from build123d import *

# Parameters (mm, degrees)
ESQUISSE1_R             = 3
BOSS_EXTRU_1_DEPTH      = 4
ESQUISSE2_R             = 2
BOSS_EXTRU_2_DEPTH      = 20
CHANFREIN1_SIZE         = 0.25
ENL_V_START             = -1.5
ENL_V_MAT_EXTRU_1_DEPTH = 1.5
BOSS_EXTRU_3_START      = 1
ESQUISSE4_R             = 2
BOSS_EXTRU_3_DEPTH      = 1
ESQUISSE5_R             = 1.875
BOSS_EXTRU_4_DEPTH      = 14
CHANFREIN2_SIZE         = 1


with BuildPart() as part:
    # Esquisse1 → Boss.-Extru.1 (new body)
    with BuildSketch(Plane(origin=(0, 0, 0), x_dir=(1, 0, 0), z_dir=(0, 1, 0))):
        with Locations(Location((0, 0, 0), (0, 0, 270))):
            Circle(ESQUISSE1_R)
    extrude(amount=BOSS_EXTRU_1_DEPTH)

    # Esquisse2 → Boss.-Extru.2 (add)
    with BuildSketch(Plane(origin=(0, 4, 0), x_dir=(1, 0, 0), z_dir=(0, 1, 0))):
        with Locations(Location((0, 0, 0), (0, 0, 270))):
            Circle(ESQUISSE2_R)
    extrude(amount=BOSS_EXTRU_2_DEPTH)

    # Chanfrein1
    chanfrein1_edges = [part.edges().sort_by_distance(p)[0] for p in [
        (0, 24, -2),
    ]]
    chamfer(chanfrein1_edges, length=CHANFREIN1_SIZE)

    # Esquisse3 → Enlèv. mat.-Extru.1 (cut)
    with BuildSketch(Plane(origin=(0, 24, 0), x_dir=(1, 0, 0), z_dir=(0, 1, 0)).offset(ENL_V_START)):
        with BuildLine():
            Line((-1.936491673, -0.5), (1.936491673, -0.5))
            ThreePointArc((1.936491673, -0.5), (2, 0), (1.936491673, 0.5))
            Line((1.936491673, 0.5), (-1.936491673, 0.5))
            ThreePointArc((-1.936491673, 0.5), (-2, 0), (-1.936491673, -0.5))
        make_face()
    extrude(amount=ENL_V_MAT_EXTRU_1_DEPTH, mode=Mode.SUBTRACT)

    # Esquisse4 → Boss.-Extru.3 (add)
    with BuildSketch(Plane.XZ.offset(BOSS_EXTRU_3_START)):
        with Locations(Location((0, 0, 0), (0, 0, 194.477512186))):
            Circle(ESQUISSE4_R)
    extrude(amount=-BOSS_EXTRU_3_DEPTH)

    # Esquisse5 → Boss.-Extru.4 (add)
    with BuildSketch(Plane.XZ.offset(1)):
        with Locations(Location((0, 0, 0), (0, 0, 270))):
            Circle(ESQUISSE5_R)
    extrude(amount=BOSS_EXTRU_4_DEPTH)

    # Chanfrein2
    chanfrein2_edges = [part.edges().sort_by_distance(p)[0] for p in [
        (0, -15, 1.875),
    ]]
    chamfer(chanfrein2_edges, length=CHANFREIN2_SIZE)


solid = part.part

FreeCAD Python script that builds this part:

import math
import FreeCAD as App
import Part
import Sketcher

V = App.Vector
Q = App.Units.Quantity


def edges_at(feature, points):
    """Names of the edges that pass closest to the given points."""
    edges = feature.Shape.Edges
    near = lambda p: min(range(len(edges)), key=lambda i: edges[i].distToShape(Part.Vertex(*p))[0])
    return sorted({f"Edge{near(p) + 1}" for p in points})

doc = App.newDocument("Part")
body = doc.addObject("PartDesign::Body", "Body")

sketch1 = doc.addObject("Sketcher::SketchObject", "Sketch")
body.addObject(sketch1)
sketch1.AttachmentSupport = (doc.XZ_Plane, [""])
sketch1.MapMode = "FlatFace"
sketch1.addGeometry(Part.Circle(V(0, 0, 0), V(0, 0, 1), 3), False)
sketch1.addConstraint([
    Sketcher.Constraint("Coincident", 0, 3, -1, 1),
    Sketcher.Constraint("Diameter", 0, Q("6 mm")),
])
pad1 = doc.addObject("PartDesign::Pad", "Pad")
body.addObject(pad1)
pad1.Profile = sketch1
pad1.Length = 4
pad1.Reversed = True

sketch2 = doc.addObject("Sketcher::SketchObject", "Sketch001")
body.addObject(sketch2)
sketch2.AttachmentSupport = (doc.XZ_Plane, [""])
sketch2.MapMode = "FlatFace"
sketch2.AttachmentOffset = App.Placement(V(0, 0, -4), App.Rotation())
sketch2.addGeometry(Part.Circle(V(0, 0, 0), V(0, 0, 1), 2), False)
sketch2.addConstraint([
    Sketcher.Constraint("Coincident", 0, 3, -1, 1),
    Sketcher.Constraint("Diameter", 0, Q("4 mm")),
])
pad2 = doc.addObject("PartDesign::Pad", "Pad001")
body.addObject(pad2)
pad2.Profile = sketch2
pad2.Length = 20
pad2.Reversed = True
doc.recompute()

chamfer = doc.addObject("PartDesign::Chamfer", "Chamfer")
body.addObject(chamfer)
chamfer.Base = (pad2, edges_at(pad2, [(0, 24, -2)]))
chamfer.Size = 0.25

sketch3 = doc.addObject("Sketcher::SketchObject", "Sketch002")
body.addObject(sketch3)
sketch3.AttachmentSupport = (doc.XZ_Plane, [""])
sketch3.MapMode = "FlatFace"
sketch3.AttachmentOffset = App.Placement(V(0, 0, -22.5), App.Rotation())
sketch3.addGeometry([
    Part.LineSegment(V(-1.9, 0.5, 0), V(1.9, 0.5, 0)),
    Part.ArcOfCircle(Part.Circle(V(0, 0, 0), V(0, 0, 1), 2), math.radians(-14), math.radians(14)),
    Part.LineSegment(V(1.9, -0.5, 0), V(-1.9, -0.5, 0)),
    Part.ArcOfCircle(Part.Circle(V(0, 0, 0), V(0, 0, 1), 2), math.radians(166), math.radians(194)),
], False)
sketch3.addConstraint([
    Sketcher.Constraint("Coincident", 0, 2, 1, 2),
    Sketcher.Constraint("Coincident", 1, 1, 2, 1),
    Sketcher.Constraint("Coincident", 2, 2, 3, 2),
    Sketcher.Constraint("Coincident", 3, 1, 0, 1),
    Sketcher.Constraint("Horizontal", 0),
    Sketcher.Constraint("Horizontal", 2),
    Sketcher.Constraint("Coincident", 1, 3, -1, 1),
    Sketcher.Constraint("Coincident", 3, 3, -1, 1),
    Sketcher.Constraint("Equal", 1, 3),
    Sketcher.Constraint("Vertical", 0, 2, 1, 1),
    Sketcher.Constraint("Radius", 1, Q("2 mm")),
    Sketcher.Constraint("DistanceY", 1, 1, 0, 2, Q("1 mm")),
])
pocket1 = doc.addObject("PartDesign::Pocket", "Pocket")
body.addObject(pocket1)
pocket1.Profile = sketch3
pocket1.Length = 1.5

sketch4 = doc.addObject("Sketcher::SketchObject", "Sketch003")
body.addObject(sketch4)
sketch4.AttachmentSupport = (doc.XZ_Plane, [""])
sketch4.MapMode = "FlatFace"
sketch4.AttachmentOffset = App.Placement(V(0, 0, 1), App.Rotation())
sketch4.addGeometry(Part.Circle(V(0, 0, 0), V(0, 0, 1), 2), False)
sketch4.addConstraint([
    Sketcher.Constraint("Coincident", 0, 3, -1, 1),
    Sketcher.Constraint("Diameter", 0, Q("4 mm")),
])
pad3 = doc.addObject("PartDesign::Pad", "Pad002")
body.addObject(pad3)
pad3.Profile = sketch4
pad3.Length = 1
pad3.Reversed = True

sketch5 = doc.addObject("Sketcher::SketchObject", "Sketch004")
body.addObject(sketch5)
sketch5.AttachmentSupport = (doc.XZ_Plane, [""])
sketch5.MapMode = "FlatFace"
sketch5.AttachmentOffset = App.Placement(V(0, 0, 1), App.Rotation())
sketch5.addGeometry(Part.Circle(V(0, 0, 0), V(0, 0, 1), 1.9), False)
sketch5.addConstraint([
    Sketcher.Constraint("Coincident", 0, 3, -1, 1),
    Sketcher.Constraint("Diameter", 0, Q("3.75 mm")),
])
pad4 = doc.addObject("PartDesign::Pad", "Pad003")
body.addObject(pad4)
pad4.Profile = sketch5
pad4.Length = 14
doc.recompute()

chamfer2 = doc.addObject("PartDesign::Chamfer", "Chamfer001")
body.addObject(chamfer2)
chamfer2.Base = (pad4, edges_at(pad4, [(0, -15, 1.875)]))
chamfer2.Size = 1

doc.recompute()
